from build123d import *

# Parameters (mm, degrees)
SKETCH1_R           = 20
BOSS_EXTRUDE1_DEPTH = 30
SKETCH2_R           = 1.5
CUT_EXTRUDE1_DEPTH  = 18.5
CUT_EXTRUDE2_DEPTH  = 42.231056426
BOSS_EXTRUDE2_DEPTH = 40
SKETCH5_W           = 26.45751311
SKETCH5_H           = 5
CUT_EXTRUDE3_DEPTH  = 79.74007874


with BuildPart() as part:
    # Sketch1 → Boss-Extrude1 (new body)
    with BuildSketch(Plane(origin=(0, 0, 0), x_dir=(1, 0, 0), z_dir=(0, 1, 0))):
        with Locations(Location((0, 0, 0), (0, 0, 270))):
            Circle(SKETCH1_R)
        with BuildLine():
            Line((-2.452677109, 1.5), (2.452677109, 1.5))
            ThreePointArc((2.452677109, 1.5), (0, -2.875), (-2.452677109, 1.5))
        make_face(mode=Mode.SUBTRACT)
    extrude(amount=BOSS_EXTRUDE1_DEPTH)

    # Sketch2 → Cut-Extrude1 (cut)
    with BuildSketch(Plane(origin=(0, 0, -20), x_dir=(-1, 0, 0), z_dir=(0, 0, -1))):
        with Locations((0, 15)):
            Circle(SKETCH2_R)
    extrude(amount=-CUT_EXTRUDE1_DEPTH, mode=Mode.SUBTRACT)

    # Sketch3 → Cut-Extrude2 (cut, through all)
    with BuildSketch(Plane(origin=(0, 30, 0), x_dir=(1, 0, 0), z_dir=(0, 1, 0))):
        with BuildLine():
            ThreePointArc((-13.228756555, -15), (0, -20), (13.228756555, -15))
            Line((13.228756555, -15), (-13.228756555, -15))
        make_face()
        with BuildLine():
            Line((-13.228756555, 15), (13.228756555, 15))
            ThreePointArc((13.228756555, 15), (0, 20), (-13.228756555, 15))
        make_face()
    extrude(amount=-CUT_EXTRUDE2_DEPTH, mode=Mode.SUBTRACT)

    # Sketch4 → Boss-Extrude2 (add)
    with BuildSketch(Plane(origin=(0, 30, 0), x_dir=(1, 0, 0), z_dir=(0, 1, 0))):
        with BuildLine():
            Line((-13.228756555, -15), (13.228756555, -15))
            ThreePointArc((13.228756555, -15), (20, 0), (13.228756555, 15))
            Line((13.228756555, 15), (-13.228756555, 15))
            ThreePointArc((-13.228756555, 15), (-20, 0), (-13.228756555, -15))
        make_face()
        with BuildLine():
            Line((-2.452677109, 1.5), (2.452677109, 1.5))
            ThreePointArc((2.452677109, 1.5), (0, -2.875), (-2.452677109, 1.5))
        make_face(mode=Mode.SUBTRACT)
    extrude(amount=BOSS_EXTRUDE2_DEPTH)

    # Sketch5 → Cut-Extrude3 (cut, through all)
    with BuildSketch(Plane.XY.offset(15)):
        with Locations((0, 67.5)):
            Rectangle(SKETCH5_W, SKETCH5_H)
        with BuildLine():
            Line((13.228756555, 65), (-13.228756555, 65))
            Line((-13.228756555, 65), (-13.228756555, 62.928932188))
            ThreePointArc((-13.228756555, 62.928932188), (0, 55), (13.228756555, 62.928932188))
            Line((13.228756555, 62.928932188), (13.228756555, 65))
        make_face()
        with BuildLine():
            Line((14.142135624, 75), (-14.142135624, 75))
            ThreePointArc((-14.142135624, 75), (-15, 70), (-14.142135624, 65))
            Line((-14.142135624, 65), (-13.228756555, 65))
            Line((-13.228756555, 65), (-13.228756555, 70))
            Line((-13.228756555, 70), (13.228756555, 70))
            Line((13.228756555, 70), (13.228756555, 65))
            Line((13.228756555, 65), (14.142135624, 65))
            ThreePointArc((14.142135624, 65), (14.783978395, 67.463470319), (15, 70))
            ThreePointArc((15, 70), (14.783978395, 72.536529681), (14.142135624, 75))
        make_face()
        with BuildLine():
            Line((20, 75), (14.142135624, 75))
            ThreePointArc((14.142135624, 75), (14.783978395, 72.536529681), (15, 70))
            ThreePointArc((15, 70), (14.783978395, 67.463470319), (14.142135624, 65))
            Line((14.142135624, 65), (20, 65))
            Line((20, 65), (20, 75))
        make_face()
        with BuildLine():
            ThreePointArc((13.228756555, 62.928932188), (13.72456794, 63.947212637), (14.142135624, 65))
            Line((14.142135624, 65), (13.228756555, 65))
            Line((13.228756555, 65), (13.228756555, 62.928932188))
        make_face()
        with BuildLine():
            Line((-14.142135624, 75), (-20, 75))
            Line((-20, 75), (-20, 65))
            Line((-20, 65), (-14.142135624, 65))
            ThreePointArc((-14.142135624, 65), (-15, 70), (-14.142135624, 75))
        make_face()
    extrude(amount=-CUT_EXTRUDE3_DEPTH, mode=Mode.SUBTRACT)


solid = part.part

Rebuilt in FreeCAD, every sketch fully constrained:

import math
import FreeCAD as App
import Part
import Sketcher

doc = App.newDocument("Part")
params = doc.addObject("Spreadsheet::Sheet", "Params")
for row, (alias, value) in enumerate([
    ("sketch1_diameter", "40 mm"),
    ("pad1_length", "30 mm"),
    ("sketch2_diameter", "3 mm"),
    ("pocket1_length", "18.5 mm"),
    ("sketch3_radius", "20 mm"),
    ("sketch4_radius", "20 mm"),
    ("pad2_length", "40 mm"),
    ("sketch5_radius", "15 mm"),
    ("sketch5_width", "40 mm"),
    ("sketch5_height", "10 mm"),
], start=1):
    params.set(f"A{row}", alias)
    params.set(f"B{row}", "=" + value)
    params.setAlias(f"B{row}", alias)

body = doc.addObject("PartDesign::Body", "Body")

# Sketch on XZ plane
sketch1 = body.newObject("Sketcher::SketchObject", "Sketch")
sketch1.AttachmentSupport = (doc.getObject("XZ_Plane"), [""])
sketch1.MapMode = "FlatFace"
sketch1.addGeometry([
    Part.Circle(App.Vector(0, 0, 0), App.Vector(0, 0, 1), 20),
    Part.ArcOfCircle(Part.Circle(App.Vector(0, 0, 0), App.Vector(0, 0, 1), 2.9), math.radians(-31), math.radians(211)),
    Part.LineSegment(App.Vector(-2.5, -1.5, 0), App.Vector(2.5, -1.5, 0)),
], False)
sketch1.addConstraint([
    Sketcher.Constraint("Coincident", 1, 1, 2, 2),
    Sketcher.Constraint("Coincident", 2, 1, 1, 2),
    Sketcher.Constraint("Horizontal", 2),
    Sketcher.Constraint("Coincident", 0, 3, -1, 1),
    Sketcher.Constraint("Coincident", 1, 3, -1, 1),
    Sketcher.Constraint("Diameter", 0, 40.0),
    Sketcher.Constraint("Radius", 1, 2.875),
    Sketcher.Constraint("DistanceY", 1, 1, -1, 1, 1.5),
])
sketch1.setExpression("Constraints[5]", "Params.sketch1_diameter")
pad1 = body.newObject("PartDesign::Pad", "Pad")
pad1.Profile = sketch1
pad1.setExpression("Length", "Params.pad1_length")
pad1.Reversed = True

# Sketch on XY plane
sketch2 = body.newObject("Sketcher::SketchObject", "Sketch001")
sketch2.AttachmentSupport = (doc.getObject("XY_Plane"), [""])
sketch2.MapMode = "FlatFace"
sketch2.AttachmentOffset = App.Placement(App.Vector(0, 0, -20), App.Rotation())
sketch2.addGeometry(Part.Circle(App.Vector(0, 15, 0), App.Vector(0, 0, 1), 1.5), False)
sketch2.addConstraint([
    Sketcher.Constraint("PointOnObject", 0, 3, -2),
    Sketcher.Constraint("Diameter", 0, 3.0),
    Sketcher.Constraint("DistanceY", -1, 1, 0, 3, 15.0),
])
sketch2.setExpression("Constraints[1]", "Params.sketch2_diameter")
pocket1 = body.newObject("PartDesign::Pocket", "Pocket")
pocket1.Profile = sketch2
pocket1.setExpression("Length", "Params.pocket1_length")
pocket1.Reversed = True

# Sketch on XZ plane
sketch3 = body.newObject("Sketcher::SketchObject", "Sketch002")
sketch3.AttachmentSupport = (doc.getObject("XZ_Plane"), [""])
sketch3.MapMode = "FlatFace"
sketch3.AttachmentOffset = App.Placement(App.Vector(0, 0, -30), App.Rotation())
sketch3.addGeometry([
    Part.ArcOfCircle(Part.Circle(App.Vector(0, 0, 0), App.Vector(0, 0, 1), 20), math.radians(49), math.radians(131)),
    Part.LineSegment(App.Vector(13, 15, 0), App.Vector(-13, 15, 0)),
    Part.LineSegment(App.Vector(-13, -15, 0), App.Vector(13, -15, 0)),
    Part.ArcOfCircle(Part.Circle(App.Vector(0, 0, 0), App.Vector(0, 0, 1), 20), math.radians(-131), math.radians(-49)),
], False)
sketch3.addConstraint([
    Sketcher.Constraint("Coincident", 0, 1, 1, 1),
    Sketcher.Constraint("Coincident", 1, 2, 0, 2),
    Sketcher.Constraint("Coincident", 2, 1, 3, 1),
    Sketcher.Constraint("Coincident", 3, 2, 2, 2),
    Sketcher.Constraint("Horizontal", 1),
    Sketcher.Constraint("Horizontal", 2),
    Sketcher.Constraint("Coincident", 0, 3, -1, 1),
    Sketcher.Constraint("Coincident", 3, 3, -1, 1),
    Sketcher.Constraint("Equal", 0, 3),
    Sketcher.Constraint("Vertical", 1, 2, 2, 1),
    Sketcher.Constraint("Radius", 0, 20.0),
    Sketcher.Constraint("DistanceY", -1, 1, 0, 1, 15.0),
])
sketch3.setExpression("Constraints[10]", "Params.sketch3_radius")
pocket2 = body.newObject("PartDesign::Pocket", "Pocket001")
pocket2.Profile = sketch3
pocket2.Type = "ThroughAll"
pocket2.Reversed = True

# Sketch on XZ plane
sketch4 = body.newObject("Sketcher::SketchObject", "Sketch003")
sketch4.AttachmentSupport = (doc.getObject("XZ_Plane"), [""])
sketch4.MapMode = "FlatFace"
sketch4.AttachmentOffset = App.Placement(App.Vector(0, 0, -30), App.Rotation())
sketch4.addGeometry([
    Part.LineSegment(App.Vector(-13.2, 15, 0), App.Vector(13.2, 15, 0)),  # 0
    Part.ArcOfCircle(Part.Circle(App.Vector(0, 0, 0), App.Vector(0, 0, 1), 20), math.radians(-49), math.radians(49)),  # 1
    Part.LineSegment(App.Vector(13.2, -15, 0), App.Vector(-13.2, -15, 0)),  # 2
    Part.ArcOfCircle(Part.Circle(App.Vector(0, 0, 0), App.Vector(0, 0, 1), 20), math.radians(131), math.radians(229)),  # 3
    Part.ArcOfCircle(Part.Circle(App.Vector(0, 0, 0), App.Vector(0, 0, 1), 2.9), math.radians(-31), math.radians(211)),  # 4
    Part.LineSegment(App.Vector(-2.5, -1.5, 0), App.Vector(2.5, -1.5, 0)),  # 5
], False)
sketch4.addConstraint([
    Sketcher.Constraint("Coincident", 0, 2, 1, 2),
    Sketcher.Constraint("Coincident", 1, 1, 2, 1),
    Sketcher.Constraint("Coincident", 2, 2, 3, 2),
    Sketcher.Constraint("Coincident", 3, 1, 0, 1),
    Sketcher.Constraint("Coincident", 4, 1, 5, 2),
    Sketcher.Constraint("Coincident", 5, 1, 4, 2),
    Sketcher.Constraint("Horizontal", 0),
    Sketcher.Constraint("Horizontal", 2),
    Sketcher.Constraint("Horizontal", 5),
    Sketcher.Constraint("Coincident", 1, 3, -1, 1),
    Sketcher.Constraint("Coincident", 3, 3, -1, 1),
    Sketcher.Constraint("Coincident", 4, 3, -1, 1),
    Sketcher.Constraint("Equal", 1, 3),
    Sketcher.Constraint("Vertical", 0, 2, 1, 1),
    Sketcher.Constraint("Radius", 1, 20.0),
    Sketcher.Constraint("DistanceY", -1, 1, 0, 2, 15.0),
    Sketcher.Constraint("Radius", 4, 2.875),
    Sketcher.Constraint("DistanceY", 4, 1, -1, 1, 1.5),
])
sketch4.setExpression("Constraints[14]", "Params.sketch4_radius")
pad2 = body.newObject("PartDesign::Pad", "Pad001")
pad2.Profile = sketch4
pad2.setExpression("Length", "Params.pad2_length")
pad2.Reversed = True

# Sketch on XY plane
sketch5 = body.newObject("Sketcher::SketchObject", "Sketch004")
sketch5.AttachmentSupport = (doc.getObject("XY_Plane"), [""])
sketch5.MapMode = "FlatFace"
sketch5.AttachmentOffset = App.Placement(App.Vector(0, 0, 15), App.Rotation())
sketch5.addGeometry([
    Part.LineSegment(App.Vector(-13.2, 65, 0), App.Vector(-13.2, 62.9, 0)),  # 0
    Part.ArcOfCircle(Part.Circle(App.Vector(0, 70, 0), App.Vector(0, 0, 1), 15), math.radians(-152), math.radians(-28)),  # 1
    Part.ArcOfCircle(Part.Circle(App.Vector(0, 70, 0), App.Vector(0, 0, 1), 15), math.radians(-28.13), math.radians(-19.47)),  # 2
    Part.LineSegment(App.Vector(14.1, 65, 0), App.Vector(20, 65, 0)),  # 3
    Part.LineSegment(App.Vector(20, 65, 0), App.Vector(20, 75, 0)),  # 4
    Part.LineSegment(App.Vector(20, 75, 0), App.Vector(-20, 75, 0)),  # 5
    Part.LineSegment(App.Vector(-20, 75, 0), App.Vector(-20, 65, 0)),  # 6
    Part.LineSegment(App.Vector(-20, 65, 0), App.Vector(-13.2, 65, 0)),  # 7
], False)
sketch5.addConstraint([
    Sketcher.Constraint("Coincident", 0, 2, 1, 1),
    Sketcher.Constraint("Tangent", 1, 2, 2, 1),
    Sketcher.Constraint("Coincident", 2, 2, 3, 1),
    Sketcher.Constraint("Coincident", 3, 2, 4, 1),
    Sketcher.Constraint("Coincident", 4, 2, 5, 1),
    Sketcher.Constraint("Coincident", 5, 2, 6, 1),
    Sketcher.Constraint("Coincident", 6, 2, 7, 1),
    Sketcher.Constraint("Coincident", 7, 2, 0, 1),
    Sketcher.Constraint("Vertical", 0),
    Sketcher.Constraint("Horizontal", 3),
    Sketcher.Constraint("Vertical", 4),
    Sketcher.Constraint("Horizontal", 5),
    Sketcher.Constraint("Vertical", 6),
    Sketcher.Constraint("Horizontal", 7),
    Sketcher.Constraint("Equal", 1, 2),
    Sketcher.Constraint("Symmetric", 0, 2, 1, 2, -2),
    Sketcher.Constraint("Symmetric", 3, 2, 6, 2, -2),
    Sketcher.Constraint("Radius", 1, 15.0),
    Sketcher.Constraint("DistanceX", 5, 2, 5, 1, 40.0),
    Sketcher.Constraint("DistanceY", 4, 1, 4, 2, 10.0),
    Sketcher.Constraint("DistanceY", -1, 1, 1, 3, 70.0),
    Sketcher.Constraint("DistanceY", -1, 1, 2, 2, 65.0),
    Sketcher.Constraint("DistanceX", 7, 1, 7, 2, 6.771243),
])
sketch5.setExpression("Constraints[17]", "Params.sketch5_radius")
sketch5.setExpression("Constraints[18]", "Params.sketch5_width")
sketch5.setExpression("Constraints[19]", "Params.sketch5_height")
pocket3 = body.newObject("PartDesign::Pocket", "Pocket002")
pocket3.Profile = sketch5
pocket3.Type = "ThroughAll"

doc.recompute()
